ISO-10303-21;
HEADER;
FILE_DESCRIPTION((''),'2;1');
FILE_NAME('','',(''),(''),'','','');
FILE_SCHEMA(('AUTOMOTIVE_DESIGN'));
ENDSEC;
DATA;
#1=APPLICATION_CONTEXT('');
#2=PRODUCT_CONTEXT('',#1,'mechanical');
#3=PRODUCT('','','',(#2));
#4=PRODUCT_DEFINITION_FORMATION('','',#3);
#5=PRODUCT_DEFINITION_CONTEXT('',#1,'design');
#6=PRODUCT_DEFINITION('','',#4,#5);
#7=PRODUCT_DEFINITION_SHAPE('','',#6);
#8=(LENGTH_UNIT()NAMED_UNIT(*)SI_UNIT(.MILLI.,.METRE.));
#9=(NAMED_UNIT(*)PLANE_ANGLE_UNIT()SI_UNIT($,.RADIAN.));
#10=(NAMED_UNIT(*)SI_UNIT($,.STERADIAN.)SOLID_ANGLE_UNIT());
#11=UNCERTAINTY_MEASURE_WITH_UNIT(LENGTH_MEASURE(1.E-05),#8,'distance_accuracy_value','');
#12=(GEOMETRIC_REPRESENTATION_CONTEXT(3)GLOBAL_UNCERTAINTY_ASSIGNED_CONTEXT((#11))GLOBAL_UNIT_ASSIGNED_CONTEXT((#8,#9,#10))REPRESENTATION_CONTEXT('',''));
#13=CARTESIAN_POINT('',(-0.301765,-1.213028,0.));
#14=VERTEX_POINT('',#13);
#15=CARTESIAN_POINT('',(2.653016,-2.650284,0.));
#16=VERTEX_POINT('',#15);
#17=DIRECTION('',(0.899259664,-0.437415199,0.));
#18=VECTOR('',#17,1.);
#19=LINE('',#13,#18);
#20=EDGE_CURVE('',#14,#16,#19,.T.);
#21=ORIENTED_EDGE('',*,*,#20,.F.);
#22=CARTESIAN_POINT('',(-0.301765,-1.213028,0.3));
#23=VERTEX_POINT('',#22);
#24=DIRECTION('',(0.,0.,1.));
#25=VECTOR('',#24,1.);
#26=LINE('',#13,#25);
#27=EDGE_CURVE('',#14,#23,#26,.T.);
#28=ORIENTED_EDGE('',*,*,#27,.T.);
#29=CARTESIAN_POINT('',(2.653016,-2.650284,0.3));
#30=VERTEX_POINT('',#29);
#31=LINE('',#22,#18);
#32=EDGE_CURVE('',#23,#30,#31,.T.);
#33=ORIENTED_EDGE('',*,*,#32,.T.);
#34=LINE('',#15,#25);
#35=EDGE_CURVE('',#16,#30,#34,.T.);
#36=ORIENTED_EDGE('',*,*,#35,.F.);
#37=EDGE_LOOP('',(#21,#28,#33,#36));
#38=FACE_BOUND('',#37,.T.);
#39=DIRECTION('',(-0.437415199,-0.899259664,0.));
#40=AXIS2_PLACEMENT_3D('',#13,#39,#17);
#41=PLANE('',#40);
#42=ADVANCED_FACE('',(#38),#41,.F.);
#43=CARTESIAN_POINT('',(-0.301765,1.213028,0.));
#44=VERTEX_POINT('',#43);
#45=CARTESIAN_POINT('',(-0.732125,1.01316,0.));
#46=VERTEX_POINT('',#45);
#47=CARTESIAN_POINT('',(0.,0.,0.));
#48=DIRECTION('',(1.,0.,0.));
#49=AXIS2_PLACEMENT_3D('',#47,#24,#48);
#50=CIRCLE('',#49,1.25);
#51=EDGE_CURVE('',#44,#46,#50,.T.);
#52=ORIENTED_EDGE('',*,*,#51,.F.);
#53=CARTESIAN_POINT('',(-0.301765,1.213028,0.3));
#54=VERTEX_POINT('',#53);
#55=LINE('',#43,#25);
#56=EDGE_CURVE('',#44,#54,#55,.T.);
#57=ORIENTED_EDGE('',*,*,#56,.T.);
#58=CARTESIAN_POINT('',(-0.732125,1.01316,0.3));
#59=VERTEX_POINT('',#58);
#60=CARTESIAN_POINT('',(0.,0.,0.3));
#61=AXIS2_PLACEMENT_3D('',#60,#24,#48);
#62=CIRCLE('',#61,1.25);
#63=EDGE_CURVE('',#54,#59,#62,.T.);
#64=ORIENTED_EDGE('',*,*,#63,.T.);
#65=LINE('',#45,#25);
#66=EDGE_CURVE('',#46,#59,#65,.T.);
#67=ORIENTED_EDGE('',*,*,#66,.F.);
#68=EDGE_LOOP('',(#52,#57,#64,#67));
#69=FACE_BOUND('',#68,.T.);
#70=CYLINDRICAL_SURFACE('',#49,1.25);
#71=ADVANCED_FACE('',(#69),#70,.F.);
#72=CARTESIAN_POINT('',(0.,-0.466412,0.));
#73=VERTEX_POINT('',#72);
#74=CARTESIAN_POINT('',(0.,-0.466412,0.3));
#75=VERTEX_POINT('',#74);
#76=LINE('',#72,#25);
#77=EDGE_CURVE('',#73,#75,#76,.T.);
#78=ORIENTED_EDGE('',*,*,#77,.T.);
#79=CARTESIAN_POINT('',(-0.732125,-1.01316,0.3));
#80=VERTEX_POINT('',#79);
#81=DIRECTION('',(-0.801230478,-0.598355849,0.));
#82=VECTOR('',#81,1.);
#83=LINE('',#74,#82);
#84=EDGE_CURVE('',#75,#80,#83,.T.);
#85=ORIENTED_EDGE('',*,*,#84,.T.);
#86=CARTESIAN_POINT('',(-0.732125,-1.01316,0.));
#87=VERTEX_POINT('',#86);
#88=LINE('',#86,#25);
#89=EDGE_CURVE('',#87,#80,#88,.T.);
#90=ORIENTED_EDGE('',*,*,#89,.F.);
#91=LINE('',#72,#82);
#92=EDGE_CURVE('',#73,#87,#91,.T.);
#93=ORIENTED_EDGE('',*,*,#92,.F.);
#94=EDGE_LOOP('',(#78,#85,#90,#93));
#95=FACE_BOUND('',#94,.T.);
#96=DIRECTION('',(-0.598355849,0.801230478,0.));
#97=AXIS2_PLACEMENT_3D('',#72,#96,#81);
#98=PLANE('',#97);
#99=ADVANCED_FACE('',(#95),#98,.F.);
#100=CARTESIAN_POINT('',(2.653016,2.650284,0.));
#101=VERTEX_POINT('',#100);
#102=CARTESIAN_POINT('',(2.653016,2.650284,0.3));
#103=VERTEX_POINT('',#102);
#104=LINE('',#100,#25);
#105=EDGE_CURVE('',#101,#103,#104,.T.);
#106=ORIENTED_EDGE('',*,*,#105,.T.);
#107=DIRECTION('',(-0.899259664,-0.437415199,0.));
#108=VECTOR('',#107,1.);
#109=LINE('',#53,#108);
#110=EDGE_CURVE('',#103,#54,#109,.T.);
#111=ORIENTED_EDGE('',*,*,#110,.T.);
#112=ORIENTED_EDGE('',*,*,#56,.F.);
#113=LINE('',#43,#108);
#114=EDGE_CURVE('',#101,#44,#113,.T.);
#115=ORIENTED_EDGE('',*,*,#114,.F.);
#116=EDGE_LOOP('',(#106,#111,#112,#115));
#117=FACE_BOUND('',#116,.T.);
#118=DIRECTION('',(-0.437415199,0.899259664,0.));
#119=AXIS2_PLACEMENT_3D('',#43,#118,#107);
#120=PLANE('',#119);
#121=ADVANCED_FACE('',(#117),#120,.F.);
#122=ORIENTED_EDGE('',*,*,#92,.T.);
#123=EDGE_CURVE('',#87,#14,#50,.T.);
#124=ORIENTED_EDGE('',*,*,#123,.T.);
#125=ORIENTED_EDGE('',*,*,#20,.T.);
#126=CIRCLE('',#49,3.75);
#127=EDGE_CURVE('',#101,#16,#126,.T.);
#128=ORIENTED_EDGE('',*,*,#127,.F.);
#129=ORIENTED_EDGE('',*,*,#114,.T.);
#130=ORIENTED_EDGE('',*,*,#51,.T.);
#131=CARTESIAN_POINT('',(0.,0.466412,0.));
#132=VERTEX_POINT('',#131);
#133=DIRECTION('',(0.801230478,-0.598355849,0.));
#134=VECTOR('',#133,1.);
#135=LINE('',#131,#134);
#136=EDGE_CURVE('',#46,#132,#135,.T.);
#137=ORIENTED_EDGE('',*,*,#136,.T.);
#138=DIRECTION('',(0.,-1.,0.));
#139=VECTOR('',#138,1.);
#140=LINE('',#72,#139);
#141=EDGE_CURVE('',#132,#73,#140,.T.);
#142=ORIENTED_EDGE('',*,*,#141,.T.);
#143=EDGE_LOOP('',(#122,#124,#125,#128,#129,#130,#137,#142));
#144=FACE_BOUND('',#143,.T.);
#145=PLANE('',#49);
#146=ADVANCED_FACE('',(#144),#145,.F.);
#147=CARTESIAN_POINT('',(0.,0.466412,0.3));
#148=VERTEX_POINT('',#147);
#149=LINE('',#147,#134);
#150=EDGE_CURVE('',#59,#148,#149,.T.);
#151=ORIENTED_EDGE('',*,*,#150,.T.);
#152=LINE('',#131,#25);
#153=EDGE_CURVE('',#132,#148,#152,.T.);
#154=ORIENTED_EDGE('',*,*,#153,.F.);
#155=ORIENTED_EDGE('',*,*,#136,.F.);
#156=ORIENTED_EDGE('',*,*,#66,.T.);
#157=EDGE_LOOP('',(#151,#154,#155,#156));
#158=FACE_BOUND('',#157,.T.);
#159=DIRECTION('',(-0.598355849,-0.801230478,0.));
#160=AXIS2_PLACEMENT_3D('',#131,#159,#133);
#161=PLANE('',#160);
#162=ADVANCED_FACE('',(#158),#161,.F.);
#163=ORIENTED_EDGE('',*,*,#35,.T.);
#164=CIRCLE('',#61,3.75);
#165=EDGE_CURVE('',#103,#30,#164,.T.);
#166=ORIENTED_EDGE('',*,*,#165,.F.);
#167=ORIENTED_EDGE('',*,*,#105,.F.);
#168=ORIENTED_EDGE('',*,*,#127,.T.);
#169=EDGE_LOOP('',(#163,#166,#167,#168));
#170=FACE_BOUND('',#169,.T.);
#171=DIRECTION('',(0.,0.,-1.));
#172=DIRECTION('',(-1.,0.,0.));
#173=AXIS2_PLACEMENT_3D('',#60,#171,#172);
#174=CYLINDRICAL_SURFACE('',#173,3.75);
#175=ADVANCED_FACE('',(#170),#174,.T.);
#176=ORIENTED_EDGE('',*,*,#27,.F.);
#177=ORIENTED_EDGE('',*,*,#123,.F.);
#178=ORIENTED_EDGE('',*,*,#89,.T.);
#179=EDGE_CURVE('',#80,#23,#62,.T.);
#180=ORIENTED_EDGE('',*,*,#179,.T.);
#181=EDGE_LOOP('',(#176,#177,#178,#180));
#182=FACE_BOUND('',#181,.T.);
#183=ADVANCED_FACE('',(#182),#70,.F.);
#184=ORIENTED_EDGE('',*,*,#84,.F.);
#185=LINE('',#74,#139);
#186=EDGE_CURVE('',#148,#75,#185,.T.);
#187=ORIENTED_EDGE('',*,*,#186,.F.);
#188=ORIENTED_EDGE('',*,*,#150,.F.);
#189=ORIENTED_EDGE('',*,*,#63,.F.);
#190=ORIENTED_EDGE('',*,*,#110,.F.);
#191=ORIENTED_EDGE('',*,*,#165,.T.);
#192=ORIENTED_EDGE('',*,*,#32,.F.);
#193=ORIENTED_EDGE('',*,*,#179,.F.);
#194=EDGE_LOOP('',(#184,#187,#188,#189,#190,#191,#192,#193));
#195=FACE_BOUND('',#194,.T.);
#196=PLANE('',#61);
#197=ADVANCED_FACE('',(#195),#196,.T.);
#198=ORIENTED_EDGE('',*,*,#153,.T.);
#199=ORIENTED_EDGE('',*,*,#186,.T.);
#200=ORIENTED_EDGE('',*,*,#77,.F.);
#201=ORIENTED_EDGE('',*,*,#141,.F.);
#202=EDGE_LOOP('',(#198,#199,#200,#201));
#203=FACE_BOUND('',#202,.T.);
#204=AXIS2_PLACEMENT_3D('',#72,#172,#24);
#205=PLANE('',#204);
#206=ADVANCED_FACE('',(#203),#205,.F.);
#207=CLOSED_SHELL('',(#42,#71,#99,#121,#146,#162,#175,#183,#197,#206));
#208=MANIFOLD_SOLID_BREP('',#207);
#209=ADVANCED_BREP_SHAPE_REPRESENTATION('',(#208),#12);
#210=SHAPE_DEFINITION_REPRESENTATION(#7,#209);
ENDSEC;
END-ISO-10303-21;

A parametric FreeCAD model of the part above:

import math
import FreeCAD as App
import Part
import Sketcher
Q = App.Units.Quantity

doc = App.newDocument("Part")
body = doc.addObject("PartDesign::Body", "Body")

# Sketch on XY plane
sketch1 = body.newObject("Sketcher::SketchObject", "Sketch")
sketch1.AttachmentSupport = (doc.getObject("XY_Plane"), [""])
sketch1.MapMode = "FlatFace"
sketch1.addGeometry(Part.Circle(App.Vector(0, 0, 0), App.Vector(0, 0, 1), 3.8), False)
sketch1.addConstraint(Sketcher.Constraint("Coincident", 0, 3, -1, 1))
sketch1.addConstraint(Sketcher.Constraint("Diameter", 0, Q("7.5 mm")))
pad1 = body.newObject("PartDesign::Pad", "Pad")
pad1.Profile = sketch1
pad1.Length = 0.3

# Sketch on XY plane
sketch2 = body.newObject("Sketcher::SketchObject", "Sketch001")
sketch2.AttachmentSupport = (doc.getObject("XY_Plane"), [""])
sketch2.MapMode = "FlatFace"
sketch2.AttachmentOffset = App.Placement(App.Vector(0, 0, 0.3), App.Rotation())
sketch2.addGeometry(Part.LineSegment(App.Vector(-0.73, 1.01, 0), App.Vector(0, 0.47, 0)), False)
sketch2.addGeometry(Part.LineSegment(App.Vector(0, 0.47, 0), App.Vector(0, -0.47, 0)), False)
sketch2.addGeometry(Part.LineSegment(App.Vector(0, -0.47, 0), App.Vector(-0.73, -1.01, 0)), False)
sketch2.addGeometry(Part.ArcOfCircle(Part.Circle(App.Vector(0, 0, 0), App.Vector(0, 0, 1), 1.25), math.radians(-126), math.radians(-104)), False)
sketch2.addGeometry(Part.LineSegment(App.Vector(-0.3, -1.21, 0), App.Vector(2.65, -2.65, 0)), False)
sketch2.addGeometry(Part.ArcOfCircle(Part.Circle(App.Vector(0, 0, 0), App.Vector(0, 0, 1), 3.75), math.radians(-45), math.radians(45)), False)
sketch2.addGeometry(Part.LineSegment(App.Vector(2.65, 2.65, 0), App.Vector(-0.3, 1.21, 0)), False)
sketch2.addGeometry(Part.ArcOfCircle(Part.Circle(App.Vector(0, 0, 0), App.Vector(0, 0, 1), 1.25), math.radians(104), math.radians(126)), False)
sketch2.addConstraint(Sketcher.Constraint("Coincident", 0, 2, 1, 1))
sketch2.addConstraint(Sketcher.Constraint("Coincident", 1, 2, 2, 1))
sketch2.addConstraint(Sketcher.Constraint("Coincident", 2, 2, 3, 1))
sketch2.addConstraint(Sketcher.Constraint("Coincident", 3, 2, 4, 1))
sketch2.addConstraint(Sketcher.Constraint("Coincident", 4, 2, 5, 1))
sketch2.addConstraint(Sketcher.Constraint("Coincident", 5, 2, 6, 1))
sketch2.addConstraint(Sketcher.Constraint("Coincident", 6, 2, 7, 1))
sketch2.addConstraint(Sketcher.Constraint("Coincident", 7, 2, 0, 1))
sketch2.addConstraint(Sketcher.Constraint("Vertical", 1))
sketch2.addConstraint(Sketcher.Constraint("Coincident", 3, 3, -1, 1))
sketch2.addConstraint(Sketcher.Constraint("Coincident", 5, 3, -1, 1))
sketch2.addConstraint(Sketcher.Constraint("Coincident", 7, 3, -1, 1))
sketch2.addConstraint(Sketcher.Constraint("Equal", 3, 7))
sketch2.addConstraint(Sketcher.Constraint("Symmetric", 0, 2, 1, 2, -1, 1))
sketch2.addConstraint(Sketcher.Constraint("Vertical", 4, 2, 5, 2))
sketch2.addConstraint(Sketcher.Constraint("Vertical", 3, 2, 6, 2))
sketch2.addConstraint(Sketcher.Constraint("Vertical", 2, 2, 7, 2))
sketch2.addConstraint(Sketcher.Constraint("Radius", 3, Q("1.25 mm")))
sketch2.addConstraint(Sketcher.Constraint("Radius", 5, Q("3.75 mm")))
sketch2.addConstraint(Sketcher.Constraint("Distance", 0, Q("0.913751 mm")))
sketch2.addConstraint(Sketcher.Constraint("DistanceY", 1, 2, 1, 1, Q("0.932824 mm")))
sketch2.addConstraint(Sketcher.Constraint("DistanceY", 3, 2, -1, 1, Q("1.213028 mm")))
sketch2.addConstraint(Sketcher.Constraint("DistanceX", 3, 2, 4, 2, Q("2.954781 mm")))
pocket1 = body.newObject("PartDesign::Pocket", "Pocket")
pocket1.Profile = sketch2
pocket1.Type = "ThroughAll"

doc.recompute()
